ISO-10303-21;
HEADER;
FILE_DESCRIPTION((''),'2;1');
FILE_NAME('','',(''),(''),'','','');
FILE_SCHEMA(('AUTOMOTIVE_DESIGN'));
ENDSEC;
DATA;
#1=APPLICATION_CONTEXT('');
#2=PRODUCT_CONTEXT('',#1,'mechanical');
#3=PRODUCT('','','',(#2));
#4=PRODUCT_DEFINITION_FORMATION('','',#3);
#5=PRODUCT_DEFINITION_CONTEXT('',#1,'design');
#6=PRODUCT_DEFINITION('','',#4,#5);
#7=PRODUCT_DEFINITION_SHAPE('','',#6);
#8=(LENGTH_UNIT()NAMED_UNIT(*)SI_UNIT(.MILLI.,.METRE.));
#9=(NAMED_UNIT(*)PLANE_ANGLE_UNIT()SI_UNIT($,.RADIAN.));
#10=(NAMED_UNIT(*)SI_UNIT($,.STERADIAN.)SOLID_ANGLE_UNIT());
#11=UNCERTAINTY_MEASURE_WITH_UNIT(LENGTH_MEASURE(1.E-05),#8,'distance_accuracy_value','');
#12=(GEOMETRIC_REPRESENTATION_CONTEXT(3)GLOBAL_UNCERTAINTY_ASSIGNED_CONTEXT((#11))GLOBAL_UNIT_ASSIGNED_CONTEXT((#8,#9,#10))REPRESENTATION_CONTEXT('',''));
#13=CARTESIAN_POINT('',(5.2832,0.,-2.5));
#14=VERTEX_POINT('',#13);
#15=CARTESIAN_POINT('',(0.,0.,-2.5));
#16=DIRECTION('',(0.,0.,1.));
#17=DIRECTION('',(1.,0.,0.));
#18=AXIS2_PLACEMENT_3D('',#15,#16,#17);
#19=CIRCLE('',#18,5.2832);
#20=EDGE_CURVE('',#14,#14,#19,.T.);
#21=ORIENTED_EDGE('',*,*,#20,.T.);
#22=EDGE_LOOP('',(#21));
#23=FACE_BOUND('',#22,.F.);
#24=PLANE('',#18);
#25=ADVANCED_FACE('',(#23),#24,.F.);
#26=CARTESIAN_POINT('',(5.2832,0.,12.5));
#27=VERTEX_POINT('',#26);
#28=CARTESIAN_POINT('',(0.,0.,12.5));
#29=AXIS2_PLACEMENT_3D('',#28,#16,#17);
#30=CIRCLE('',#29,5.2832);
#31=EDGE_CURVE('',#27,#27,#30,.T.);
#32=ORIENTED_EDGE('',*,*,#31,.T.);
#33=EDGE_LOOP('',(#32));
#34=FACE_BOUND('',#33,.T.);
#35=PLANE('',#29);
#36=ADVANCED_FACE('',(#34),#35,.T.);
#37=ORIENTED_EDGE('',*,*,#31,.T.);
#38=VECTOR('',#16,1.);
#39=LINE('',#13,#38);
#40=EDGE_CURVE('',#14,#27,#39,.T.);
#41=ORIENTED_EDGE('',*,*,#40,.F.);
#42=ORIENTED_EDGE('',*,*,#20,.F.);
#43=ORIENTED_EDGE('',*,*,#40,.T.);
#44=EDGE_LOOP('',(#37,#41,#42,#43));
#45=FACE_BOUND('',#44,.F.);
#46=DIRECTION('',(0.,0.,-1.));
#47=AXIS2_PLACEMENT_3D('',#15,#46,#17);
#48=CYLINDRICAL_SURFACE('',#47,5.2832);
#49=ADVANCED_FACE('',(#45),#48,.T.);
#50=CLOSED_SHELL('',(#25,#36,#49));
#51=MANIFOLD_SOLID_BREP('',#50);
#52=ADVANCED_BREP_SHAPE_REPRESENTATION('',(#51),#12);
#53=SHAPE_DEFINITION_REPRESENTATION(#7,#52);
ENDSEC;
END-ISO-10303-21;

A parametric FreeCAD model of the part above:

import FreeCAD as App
import Part
import Sketcher
Q = App.Units.Quantity

doc = App.newDocument("Part")
body = doc.addObject("PartDesign::Body", "Body")

# Sketch on XY plane
sketch1 = body.newObject("Sketcher::SketchObject", "Sketch")
sketch1.AttachmentSupport = (doc.getObject("XY_Plane"), [""])
sketch1.MapMode = "FlatFace"
sketch1.AttachmentOffset = App.Placement(App.Vector(0, 0, -2.5), App.Rotation())
sketch1.addGeometry(Part.Circle(App.Vector(0, 0, 0), App.Vector(0, 0, 1), 5), False)
sketch1.addConstraint([
    Sketcher.Constraint("Coincident", 0, 3, -1, 1),
    Sketcher.Constraint("Diameter", 0, Q("10.5664 mm")),
])
pad1 = body.newObject("PartDesign::Pad", "Pad")
pad1.Profile = sketch1
pad1.Length = 15

doc.recompute()
